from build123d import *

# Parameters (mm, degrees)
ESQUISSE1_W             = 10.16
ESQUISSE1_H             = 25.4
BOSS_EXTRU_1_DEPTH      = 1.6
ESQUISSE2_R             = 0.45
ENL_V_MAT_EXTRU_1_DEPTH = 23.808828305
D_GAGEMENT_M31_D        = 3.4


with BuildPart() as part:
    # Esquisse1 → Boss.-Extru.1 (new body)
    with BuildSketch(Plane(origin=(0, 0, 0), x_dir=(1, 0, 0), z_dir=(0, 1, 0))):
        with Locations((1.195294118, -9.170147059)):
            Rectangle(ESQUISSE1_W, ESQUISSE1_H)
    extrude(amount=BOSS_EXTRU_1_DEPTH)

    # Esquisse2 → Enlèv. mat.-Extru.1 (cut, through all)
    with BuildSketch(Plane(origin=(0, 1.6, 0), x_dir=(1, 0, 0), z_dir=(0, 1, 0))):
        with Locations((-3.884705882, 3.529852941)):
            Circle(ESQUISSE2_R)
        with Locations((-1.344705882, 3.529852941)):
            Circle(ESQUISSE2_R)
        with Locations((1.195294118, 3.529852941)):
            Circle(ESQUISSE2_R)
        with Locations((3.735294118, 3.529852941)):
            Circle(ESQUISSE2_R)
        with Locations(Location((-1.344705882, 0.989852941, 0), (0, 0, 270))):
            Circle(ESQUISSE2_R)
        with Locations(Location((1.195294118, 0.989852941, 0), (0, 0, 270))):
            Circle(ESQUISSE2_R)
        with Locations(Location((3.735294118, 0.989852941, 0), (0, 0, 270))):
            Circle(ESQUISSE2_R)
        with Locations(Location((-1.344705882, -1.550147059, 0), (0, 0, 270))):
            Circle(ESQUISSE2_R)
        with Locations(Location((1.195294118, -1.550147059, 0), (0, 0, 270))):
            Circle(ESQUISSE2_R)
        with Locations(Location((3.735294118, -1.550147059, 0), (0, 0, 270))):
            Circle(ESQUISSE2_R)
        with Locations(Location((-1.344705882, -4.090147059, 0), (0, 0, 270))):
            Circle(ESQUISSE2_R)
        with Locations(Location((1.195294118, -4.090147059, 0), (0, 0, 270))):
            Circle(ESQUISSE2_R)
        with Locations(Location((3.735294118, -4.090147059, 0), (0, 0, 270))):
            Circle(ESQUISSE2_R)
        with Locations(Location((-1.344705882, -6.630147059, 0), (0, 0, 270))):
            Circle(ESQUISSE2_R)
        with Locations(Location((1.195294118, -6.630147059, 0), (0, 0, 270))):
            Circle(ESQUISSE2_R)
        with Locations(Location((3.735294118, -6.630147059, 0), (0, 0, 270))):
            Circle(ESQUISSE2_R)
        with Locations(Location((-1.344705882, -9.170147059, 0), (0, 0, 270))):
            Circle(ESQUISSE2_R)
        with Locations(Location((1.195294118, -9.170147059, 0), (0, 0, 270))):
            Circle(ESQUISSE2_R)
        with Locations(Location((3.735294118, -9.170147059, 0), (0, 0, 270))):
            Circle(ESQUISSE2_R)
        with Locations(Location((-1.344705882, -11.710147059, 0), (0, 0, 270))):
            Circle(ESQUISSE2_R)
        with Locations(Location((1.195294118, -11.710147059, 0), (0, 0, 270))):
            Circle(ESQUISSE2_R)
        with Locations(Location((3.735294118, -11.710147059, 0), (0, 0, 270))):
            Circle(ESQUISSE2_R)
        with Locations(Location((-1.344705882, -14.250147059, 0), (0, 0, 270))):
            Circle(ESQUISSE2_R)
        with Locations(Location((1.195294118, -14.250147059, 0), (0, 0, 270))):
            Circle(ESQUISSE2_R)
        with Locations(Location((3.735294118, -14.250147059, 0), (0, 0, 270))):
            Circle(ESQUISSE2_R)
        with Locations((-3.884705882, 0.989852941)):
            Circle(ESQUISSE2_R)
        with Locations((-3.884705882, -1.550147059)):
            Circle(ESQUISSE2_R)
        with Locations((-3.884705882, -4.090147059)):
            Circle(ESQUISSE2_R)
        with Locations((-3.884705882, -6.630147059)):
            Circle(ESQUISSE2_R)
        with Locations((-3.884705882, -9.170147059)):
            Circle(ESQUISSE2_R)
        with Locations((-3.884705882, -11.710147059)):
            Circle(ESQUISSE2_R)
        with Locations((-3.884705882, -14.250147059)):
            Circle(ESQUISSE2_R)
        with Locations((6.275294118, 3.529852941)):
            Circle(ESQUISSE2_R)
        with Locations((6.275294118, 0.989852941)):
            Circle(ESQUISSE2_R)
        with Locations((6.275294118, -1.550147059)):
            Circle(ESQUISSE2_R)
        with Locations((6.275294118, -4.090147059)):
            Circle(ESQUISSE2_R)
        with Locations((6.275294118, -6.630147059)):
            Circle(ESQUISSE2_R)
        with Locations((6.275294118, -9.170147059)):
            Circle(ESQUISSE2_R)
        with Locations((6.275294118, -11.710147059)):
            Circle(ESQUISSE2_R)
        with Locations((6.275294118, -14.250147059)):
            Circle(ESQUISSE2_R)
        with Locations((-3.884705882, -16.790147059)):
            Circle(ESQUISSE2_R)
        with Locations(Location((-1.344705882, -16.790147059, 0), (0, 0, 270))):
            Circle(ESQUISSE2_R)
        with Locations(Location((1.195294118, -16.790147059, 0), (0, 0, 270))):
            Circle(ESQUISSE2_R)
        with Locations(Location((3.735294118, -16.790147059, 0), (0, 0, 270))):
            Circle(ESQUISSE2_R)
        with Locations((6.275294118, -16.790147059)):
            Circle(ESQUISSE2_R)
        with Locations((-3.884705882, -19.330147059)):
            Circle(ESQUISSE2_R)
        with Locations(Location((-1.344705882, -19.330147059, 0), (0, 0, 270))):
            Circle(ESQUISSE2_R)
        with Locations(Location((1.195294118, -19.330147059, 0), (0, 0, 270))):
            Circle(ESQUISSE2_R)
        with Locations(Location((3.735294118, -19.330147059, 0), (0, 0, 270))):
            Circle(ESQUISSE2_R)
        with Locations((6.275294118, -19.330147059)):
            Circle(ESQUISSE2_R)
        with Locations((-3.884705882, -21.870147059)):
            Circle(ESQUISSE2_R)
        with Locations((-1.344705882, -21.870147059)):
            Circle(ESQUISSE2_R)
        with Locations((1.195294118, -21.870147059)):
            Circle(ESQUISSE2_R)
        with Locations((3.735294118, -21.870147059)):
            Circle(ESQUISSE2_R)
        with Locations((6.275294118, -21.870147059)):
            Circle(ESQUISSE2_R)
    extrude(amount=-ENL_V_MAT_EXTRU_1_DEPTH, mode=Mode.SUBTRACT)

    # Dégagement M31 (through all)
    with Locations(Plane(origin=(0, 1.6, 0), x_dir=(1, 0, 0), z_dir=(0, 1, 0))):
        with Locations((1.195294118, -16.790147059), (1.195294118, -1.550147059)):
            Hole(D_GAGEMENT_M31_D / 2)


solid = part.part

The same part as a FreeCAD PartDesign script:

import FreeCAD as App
import Part
import Sketcher

doc = App.newDocument("Part")
body = doc.addObject("PartDesign::Body", "Body")

sketch1 = body.newObject("Sketcher::SketchObject", "Sketch")
sketch1.AttachmentSupport = (doc.getObject("XZ_Plane"), [""])
sketch1.MapMode = "FlatFace"
sketch1.addGeometry([
    Part.LineSegment(App.Vector(-3.884706, -3.529853, 0), App.Vector(-3.884706, 21.870147, 0)),
    Part.LineSegment(App.Vector(-3.884706, 21.870147, 0), App.Vector(6.275294, 21.870147, 0)),
    Part.LineSegment(App.Vector(6.275294, 21.870147, 0), App.Vector(6.275294, -3.529853, 0)),
    Part.LineSegment(App.Vector(6.275294, -3.529853, 0), App.Vector(-3.884706, -3.529853, 0)),
], False)
sketch1.addConstraint([
    Sketcher.Constraint("Coincident", 0, 2, 1, 1),
    Sketcher.Constraint("Coincident", 1, 2, 2, 1),
    Sketcher.Constraint("Coincident", 2, 2, 3, 1),
    Sketcher.Constraint("Coincident", 3, 2, 0, 1),
    Sketcher.Constraint("Vertical", 0),
    Sketcher.Constraint("Horizontal", 1),
    Sketcher.Constraint("Vertical", 2),
    Sketcher.Constraint("Horizontal", 3),
    Sketcher.Constraint("DistanceY", 0, 1, 0, 2, 25.4),
    Sketcher.Constraint("DistanceX", 1, 1, 1, 2, 10.16),
    Sketcher.Constraint("DistanceX", 0, 2, -1, 1, 3.884706),
    Sketcher.Constraint("DistanceY", -1, 1, 0, 2, 21.870147),
])
pad1 = body.newObject("PartDesign::Pad", "Pad")
pad1.Profile = sketch1
pad1.Length = 1.6
pad1.Reversed = True

sketch2 = body.newObject("Sketcher::SketchObject", "Sketch001")
sketch2.AttachmentSupport = (doc.getObject("XZ_Plane"), [""])
sketch2.MapMode = "FlatFace"
sketch2.AttachmentOffset = App.Placement(App.Vector(0, 0, -1.6), App.Rotation())
sketch2.addGeometry([
    Part.Circle(App.Vector(-3.884706, -3.529853, 0), App.Vector(0, 0, 1), 0.45),
    Part.Circle(App.Vector(-1.344706, -3.529853, 0), App.Vector(0, 0, 1), 0.45),
    Part.Circle(App.Vector(1.195294, -3.529853, 0), App.Vector(0, 0, 1), 0.45),
    Part.Circle(App.Vector(3.735294, -3.529853, 0), App.Vector(0, 0, 1), 0.45),
    Part.Circle(App.Vector(-1.344706, -0.989853, 0), App.Vector(0, 0, 1), 0.45),
    Part.Circle(App.Vector(1.195294, -0.989853, 0), App.Vector(0, 0, 1), 0.45),
    Part.Circle(App.Vector(3.735294, -0.989853, 0), App.Vector(0, 0, 1), 0.45),
    Part.Circle(App.Vector(-1.344706, 1.550147, 0), App.Vector(0, 0, 1), 0.45),
    Part.Circle(App.Vector(1.195294, 1.550147, 0), App.Vector(0, 0, 1), 0.45),
    Part.Circle(App.Vector(3.735294, 1.550147, 0), App.Vector(0, 0, 1), 0.45),
    Part.Circle(App.Vector(-1.344706, 4.090147, 0), App.Vector(0, 0, 1), 0.45),
    Part.Circle(App.Vector(1.195294, 4.090147, 0), App.Vector(0, 0, 1), 0.45),
    Part.Circle(App.Vector(3.735294, 4.090147, 0), App.Vector(0, 0, 1), 0.45),
    Part.Circle(App.Vector(-1.344706, 6.630147, 0), App.Vector(0, 0, 1), 0.45),
    Part.Circle(App.Vector(1.195294, 6.630147, 0), App.Vector(0, 0, 1), 0.45),
    Part.Circle(App.Vector(3.735294, 6.630147, 0), App.Vector(0, 0, 1), 0.45),
    Part.Circle(App.Vector(-1.344706, 9.170147, 0), App.Vector(0, 0, 1), 0.45),
    Part.Circle(App.Vector(1.195294, 9.170147, 0), App.Vector(0, 0, 1), 0.45),
    Part.Circle(App.Vector(3.735294, 9.170147, 0), App.Vector(0, 0, 1), 0.45),
    Part.Circle(App.Vector(-1.344706, 11.710147, 0), App.Vector(0, 0, 1), 0.45),
    Part.Circle(App.Vector(1.195294, 11.710147, 0), App.Vector(0, 0, 1), 0.45),
    Part.Circle(App.Vector(3.735294, 11.710147, 0), App.Vector(0, 0, 1), 0.45),
    Part.Circle(App.Vector(-1.344706, 14.250147, 0), App.Vector(0, 0, 1), 0.45),
    Part.Circle(App.Vector(1.195294, 14.250147, 0), App.Vector(0, 0, 1), 0.45),
    Part.Circle(App.Vector(3.735294, 14.250147, 0), App.Vector(0, 0, 1), 0.45),
    Part.Circle(App.Vector(-3.884706, -0.989853, 0), App.Vector(0, 0, 1), 0.45),
    Part.Circle(App.Vector(-3.884706, 1.550147, 0), App.Vector(0, 0, 1), 0.45),
    Part.Circle(App.Vector(-3.884706, 4.090147, 0), App.Vector(0, 0, 1), 0.45),
    Part.Circle(App.Vector(-3.884706, 6.630147, 0), App.Vector(0, 0, 1), 0.45),
    Part.Circle(App.Vector(-3.884706, 9.170147, 0), App.Vector(0, 0, 1), 0.45),
    Part.Circle(App.Vector(-3.884706, 11.710147, 0), App.Vector(0, 0, 1), 0.45),
    Part.Circle(App.Vector(-3.884706, 14.250147, 0), App.Vector(0, 0, 1), 0.45),
    Part.Circle(App.Vector(6.275294, -3.529853, 0), App.Vector(0, 0, 1), 0.45),
    Part.Circle(App.Vector(6.275294, -0.989853, 0), App.Vector(0, 0, 1), 0.45),
    Part.Circle(App.Vector(6.275294, 1.550147, 0), App.Vector(0, 0, 1), 0.45),
    Part.Circle(App.Vector(6.275294, 4.090147, 0), App.Vector(0, 0, 1), 0.45),
    Part.Circle(App.Vector(6.275294, 6.630147, 0), App.Vector(0, 0, 1), 0.45),
    Part.Circle(App.Vector(6.275294, 9.170147, 0), App.Vector(0, 0, 1), 0.45),
    Part.Circle(App.Vector(6.275294, 11.710147, 0), App.Vector(0, 0, 1), 0.45),
    Part.Circle(App.Vector(6.275294, 14.250147, 0), App.Vector(0, 0, 1), 0.45),
    Part.Circle(App.Vector(-3.884706, 16.790147, 0), App.Vector(0, 0, 1), 0.45),
    Part.Circle(App.Vector(-1.344706, 16.790147, 0), App.Vector(0, 0, 1), 0.45),
    Part.Circle(App.Vector(1.195294, 16.790147, 0), App.Vector(0, 0, 1), 0.45),
    Part.Circle(App.Vector(3.735294, 16.790147, 0), App.Vector(0, 0, 1), 0.45),
    Part.Circle(App.Vector(6.275294, 16.790147, 0), App.Vector(0, 0, 1), 0.45),
    Part.Circle(App.Vector(-3.884706, 19.330147, 0), App.Vector(0, 0, 1), 0.45),
    Part.Circle(App.Vector(-1.344706, 19.330147, 0), App.Vector(0, 0, 1), 0.45),
    Part.Circle(App.Vector(1.195294, 19.330147, 0), App.Vector(0, 0, 1), 0.45),
    Part.Circle(App.Vector(3.735294, 19.330147, 0), App.Vector(0, 0, 1), 0.45),
    Part.Circle(App.Vector(6.275294, 19.330147, 0), App.Vector(0, 0, 1), 0.45),
    Part.Circle(App.Vector(-3.884706, 21.870147, 0), App.Vector(0, 0, 1), 0.45),
    Part.Circle(App.Vector(-1.344706, 21.870147, 0), App.Vector(0, 0, 1), 0.45),
    Part.Circle(App.Vector(1.195294, 21.870147, 0), App.Vector(0, 0, 1), 0.45),
    Part.Circle(App.Vector(3.735294, 21.870147, 0), App.Vector(0, 0, 1), 0.45),
    Part.Circle(App.Vector(6.275294, 21.870147, 0), App.Vector(0, 0, 1), 0.45),
], False)
sketch2.addConstraint([
    Sketcher.Constraint("Equal", 0, 1),
    Sketcher.Constraint("Equal", 1, 2),
    Sketcher.Constraint("Equal", 2, 3),
    Sketcher.Constraint("Equal", 3, 4),
    Sketcher.Constraint("Equal", 4, 5),
    Sketcher.Constraint("Equal", 5, 6),
    Sketcher.Constraint("Equal", 6, 7),
    Sketcher.Constraint("Equal", 7, 8),
    Sketcher.Constraint("Equal", 8, 9),
    Sketcher.Constraint("Equal", 9, 10),
    Sketcher.Constraint("Equal", 10, 11),
    Sketcher.Constraint("Equal", 11, 12),
    Sketcher.Constraint("Equal", 12, 13),
    Sketcher.Constraint("Equal", 13, 14),
    Sketcher.Constraint("Equal", 14, 15),
    Sketcher.Constraint("Equal", 15, 16),
    Sketcher.Constraint("Equal", 16, 17),
    Sketcher.Constraint("Equal", 17, 18),
    Sketcher.Constraint("Equal", 18, 19),
    Sketcher.Constraint("Equal", 19, 20),
    Sketcher.Constraint("Equal", 20, 21),
    Sketcher.Constraint("Equal", 21, 22),
    Sketcher.Constraint("Equal", 22, 23),
    Sketcher.Constraint("Equal", 23, 24),
    Sketcher.Constraint("Equal", 24, 25),
    Sketcher.Constraint("Equal", 25, 26),
    Sketcher.Constraint("Equal", 26, 27),
    Sketcher.Constraint("Equal", 27, 28),
    Sketcher.Constraint("Equal", 28, 29),
    Sketcher.Constraint("Equal", 29, 30),
    Sketcher.Constraint("Equal", 30, 31),
    Sketcher.Constraint("Equal", 31, 32),
    Sketcher.Constraint("Equal", 32, 33),
    Sketcher.Constraint("Equal", 33, 34),
    Sketcher.Constraint("Equal", 34, 35),
    Sketcher.Constraint("Equal", 35, 36),
    Sketcher.Constraint("Equal", 36, 37),
    Sketcher.Constraint("Equal", 37, 38),
    Sketcher.Constraint("Equal", 38, 39),
    Sketcher.Constraint("Equal", 39, 40),
    Sketcher.Constraint("Equal", 40, 41),
    Sketcher.Constraint("Equal", 41, 42),
    Sketcher.Constraint("Equal", 42, 43),
    Sketcher.Constraint("Equal", 43, 44),
    Sketcher.Constraint("Equal", 44, 45),
    Sketcher.Constraint("Equal", 45, 46),
    Sketcher.Constraint("Equal", 46, 47),
    Sketcher.Constraint("Equal", 47, 48),
    Sketcher.Constraint("Equal", 48, 49),
    Sketcher.Constraint("Equal", 49, 50),
    Sketcher.Constraint("Equal", 50, 51),
    Sketcher.Constraint("Equal", 51, 52),
    Sketcher.Constraint("Equal", 52, 53),
    Sketcher.Constraint("Equal", 53, 54),
    Sketcher.Constraint("Horizontal", 0, 3, 1, 3),
    Sketcher.Constraint("Horizontal", 1, 3, 2, 3),
    Sketcher.Constraint("Horizontal", 2, 3, 3, 3),
    Sketcher.Constraint("Horizontal", 4, 3, 5, 3),
    Sketcher.Constraint("Horizontal", 5, 3, 6, 3),
    Sketcher.Constraint("Horizontal", 7, 3, 8, 3),
    Sketcher.Constraint("Horizontal", 8, 3, 9, 3),
    Sketcher.Constraint("Horizontal", 10, 3, 11, 3),
    Sketcher.Constraint("Horizontal", 11, 3, 12, 3),
    Sketcher.Constraint("Horizontal", 13, 3, 14, 3),
    Sketcher.Constraint("Horizontal", 14, 3, 15, 3),
    Sketcher.Constraint("Horizontal", 16, 3, 17, 3),
    Sketcher.Constraint("Horizontal", 17, 3, 18, 3),
    Sketcher.Constraint("Horizontal", 19, 3, 20, 3),
    Sketcher.Constraint("Horizontal", 20, 3, 21, 3),
    Sketcher.Constraint("Horizontal", 22, 3, 23, 3),
    Sketcher.Constraint("Horizontal", 23, 3, 24, 3),
    Sketcher.Constraint("Horizontal", 6, 3, 25, 3),
    Sketcher.Constraint("Horizontal", 9, 3, 26, 3),
    Sketcher.Constraint("Horizontal", 12, 3, 27, 3),
    Sketcher.Constraint("Horizontal", 15, 3, 28, 3),
    Sketcher.Constraint("Horizontal", 18, 3, 29, 3),
    Sketcher.Constraint("Horizontal", 21, 3, 30, 3),
    Sketcher.Constraint("Horizontal", 24, 3, 31, 3),
    Sketcher.Constraint("Horizontal", 3, 3, 32, 3),
    Sketcher.Constraint("Horizontal", 25, 3, 33, 3),
    Sketcher.Constraint("Horizontal", 26, 3, 34, 3),
    Sketcher.Constraint("Horizontal", 27, 3, 35, 3),
    Sketcher.Constraint("Horizontal", 28, 3, 36, 3),
    Sketcher.Constraint("Horizontal", 29, 3, 37, 3),
    Sketcher.Constraint("Horizontal", 30, 3, 38, 3),
    Sketcher.Constraint("Horizontal", 31, 3, 39, 3),
    Sketcher.Constraint("Horizontal", 40, 3, 41, 3),
    Sketcher.Constraint("Horizontal", 41, 3, 42, 3),
    Sketcher.Constraint("Horizontal", 42, 3, 43, 3),
    Sketcher.Constraint("Horizontal", 43, 3, 44, 3),
    Sketcher.Constraint("Horizontal", 45, 3, 46, 3),
    Sketcher.Constraint("Horizontal", 46, 3, 47, 3),
    Sketcher.Constraint("Horizontal", 47, 3, 48, 3),
    Sketcher.Constraint("Horizontal", 48, 3, 49, 3),
    Sketcher.Constraint("Horizontal", 50, 3, 51, 3),
    Sketcher.Constraint("Horizontal", 51, 3, 52, 3),
    Sketcher.Constraint("Horizontal", 52, 3, 53, 3),
    Sketcher.Constraint("Horizontal", 53, 3, 54, 3),
    Sketcher.Constraint("Vertical", 1, 3, 4, 3),
    Sketcher.Constraint("Vertical", 2, 3, 5, 3),
    Sketcher.Constraint("Vertical", 3, 3, 6, 3),
    Sketcher.Constraint("Vertical", 4, 3, 7, 3),
    Sketcher.Constraint("Vertical", 5, 3, 8, 3),
    Sketcher.Constraint("Vertical", 6, 3, 9, 3),
    Sketcher.Constraint("Vertical", 7, 3, 10, 3),
    Sketcher.Constraint("Vertical", 8, 3, 11, 3),
    Sketcher.Constraint("Vertical", 9, 3, 12, 3),
    Sketcher.Constraint("Vertical", 10, 3, 13, 3),
    Sketcher.Constraint("Vertical", 11, 3, 14, 3),
    Sketcher.Constraint("Vertical", 12, 3, 15, 3),
    Sketcher.Constraint("Vertical", 13, 3, 16, 3),
    Sketcher.Constraint("Vertical", 14, 3, 17, 3),
    Sketcher.Constraint("Vertical", 15, 3, 18, 3),
    Sketcher.Constraint("Vertical", 16, 3, 19, 3),
    Sketcher.Constraint("Vertical", 17, 3, 20, 3),
    Sketcher.Constraint("Vertical", 18, 3, 21, 3),
    Sketcher.Constraint("Vertical", 19, 3, 22, 3),
    Sketcher.Constraint("Vertical", 20, 3, 23, 3),
    Sketcher.Constraint("Vertical", 21, 3, 24, 3),
    Sketcher.Constraint("Vertical", 0, 3, 25, 3),
    Sketcher.Constraint("Vertical", 25, 3, 26, 3),
    Sketcher.Constraint("Vertical", 26, 3, 27, 3),
    Sketcher.Constraint("Vertical", 27, 3, 28, 3),
    Sketcher.Constraint("Vertical", 28, 3, 29, 3),
    Sketcher.Constraint("Vertical", 29, 3, 30, 3),
    Sketcher.Constraint("Vertical", 30, 3, 31, 3),
    Sketcher.Constraint("Vertical", 32, 3, 33, 3),
    Sketcher.Constraint("Vertical", 33, 3, 34, 3),
    Sketcher.Constraint("Vertical", 34, 3, 35, 3),
    Sketcher.Constraint("Vertical", 35, 3, 36, 3),
    Sketcher.Constraint("Vertical", 36, 3, 37, 3),
    Sketcher.Constraint("Vertical", 37, 3, 38, 3),
    Sketcher.Constraint("Vertical", 38, 3, 39, 3),
    Sketcher.Constraint("Vertical", 31, 3, 40, 3),
    Sketcher.Constraint("Vertical", 22, 3, 41, 3),
    Sketcher.Constraint("Vertical", 23, 3, 42, 3),
    Sketcher.Constraint("Vertical", 24, 3, 43, 3),
    Sketcher.Constraint("Vertical", 39, 3, 44, 3),
    Sketcher.Constraint("Vertical", 40, 3, 45, 3),
    Sketcher.Constraint("Vertical", 41, 3, 46, 3),
    Sketcher.Constraint("Vertical", 42, 3, 47, 3),
    Sketcher.Constraint("Vertical", 43, 3, 48, 3),
    Sketcher.Constraint("Vertical", 44, 3, 49, 3),
    Sketcher.Constraint("Vertical", 45, 3, 50, 3),
    Sketcher.Constraint("Vertical", 46, 3, 51, 3),
    Sketcher.Constraint("Vertical", 47, 3, 52, 3),
    Sketcher.Constraint("Vertical", 48, 3, 53, 3),
    Sketcher.Constraint("Vertical", 49, 3, 54, 3),
    Sketcher.Constraint("Diameter", 0, 0.9),
    Sketcher.Constraint("DistanceX", 0, 3, 1, 3, 2.54),
    Sketcher.Constraint("DistanceX", 1, 3, 2, 3, 2.54),
    Sketcher.Constraint("DistanceX", 2, 3, 3, 3, 2.54),
    Sketcher.Constraint("DistanceY", 1, 3, 4, 3, 2.54),
    Sketcher.Constraint("DistanceY", 4, 3, 7, 3, 2.54),
    Sketcher.Constraint("DistanceY", 7, 3, 10, 3, 2.54),
    Sketcher.Constraint("DistanceY", 10, 3, 13, 3, 2.54),
    Sketcher.Constraint("DistanceY", 13, 3, 16, 3, 2.54),
    Sketcher.Constraint("DistanceY", 16, 3, 19, 3, 2.54),
    Sketcher.Constraint("DistanceY", 19, 3, 22, 3, 2.54),
    Sketcher.Constraint("DistanceX", 3, 3, 32, 3, 2.54),
    Sketcher.Constraint("DistanceY", 31, 3, 40, 3, 2.54),
    Sketcher.Constraint("DistanceY", 40, 3, 45, 3, 2.54),
    Sketcher.Constraint("DistanceY", 45, 3, 50, 3, 2.54),
    Sketcher.Constraint("DistanceX", 0, 3, -1, 1, 3.884706),
    Sketcher.Constraint("DistanceY", 0, 3, -1, 1, 3.529853),
])
pocket1 = body.newObject("PartDesign::Pocket", "Pocket")
pocket1.Profile = sketch2
pocket1.Type = "ThroughAll"
pocket1.Reversed = True

sketch3 = body.newObject("Sketcher::SketchObject", "Sketch002")
sketch3.AttachmentSupport = (doc.getObject("XZ_Plane"), [""])
sketch3.MapMode = "FlatFace"
sketch3.AttachmentOffset = App.Placement(App.Vector(0, 0, -1.6), App.Rotation())
sketch3.addGeometry([
    Part.Circle(App.Vector(1.195294, 16.790147, 0), App.Vector(0, 0, 1), 1.7),
    Part.Circle(App.Vector(1.195294, 1.550147, 0), App.Vector(0, 0, 1), 1.7),
], False)
sketch3.addConstraint([
    Sketcher.Constraint("Equal", 0, 1),
    Sketcher.Constraint("Vertical", 0, 3, 1, 3),
    Sketcher.Constraint("Diameter", 0, 3.4),
    Sketcher.Constraint("DistanceY", 1, 3, 0, 3, 15.24),
    Sketcher.Constraint("DistanceX", -1, 1, 0, 3, 1.195294),
    Sketcher.Constraint("DistanceY", -1, 1, 0, 3, 16.790147),
])
doc.recompute()
hole = body.newObject("PartDesign::Hole", "Hole")
hole.Profile = sketch3
hole.ThreadType = "None"
hole.Diameter = 3.4
hole.DepthType = "ThroughAll"
hole.Reversed = True

doc.recompute()
